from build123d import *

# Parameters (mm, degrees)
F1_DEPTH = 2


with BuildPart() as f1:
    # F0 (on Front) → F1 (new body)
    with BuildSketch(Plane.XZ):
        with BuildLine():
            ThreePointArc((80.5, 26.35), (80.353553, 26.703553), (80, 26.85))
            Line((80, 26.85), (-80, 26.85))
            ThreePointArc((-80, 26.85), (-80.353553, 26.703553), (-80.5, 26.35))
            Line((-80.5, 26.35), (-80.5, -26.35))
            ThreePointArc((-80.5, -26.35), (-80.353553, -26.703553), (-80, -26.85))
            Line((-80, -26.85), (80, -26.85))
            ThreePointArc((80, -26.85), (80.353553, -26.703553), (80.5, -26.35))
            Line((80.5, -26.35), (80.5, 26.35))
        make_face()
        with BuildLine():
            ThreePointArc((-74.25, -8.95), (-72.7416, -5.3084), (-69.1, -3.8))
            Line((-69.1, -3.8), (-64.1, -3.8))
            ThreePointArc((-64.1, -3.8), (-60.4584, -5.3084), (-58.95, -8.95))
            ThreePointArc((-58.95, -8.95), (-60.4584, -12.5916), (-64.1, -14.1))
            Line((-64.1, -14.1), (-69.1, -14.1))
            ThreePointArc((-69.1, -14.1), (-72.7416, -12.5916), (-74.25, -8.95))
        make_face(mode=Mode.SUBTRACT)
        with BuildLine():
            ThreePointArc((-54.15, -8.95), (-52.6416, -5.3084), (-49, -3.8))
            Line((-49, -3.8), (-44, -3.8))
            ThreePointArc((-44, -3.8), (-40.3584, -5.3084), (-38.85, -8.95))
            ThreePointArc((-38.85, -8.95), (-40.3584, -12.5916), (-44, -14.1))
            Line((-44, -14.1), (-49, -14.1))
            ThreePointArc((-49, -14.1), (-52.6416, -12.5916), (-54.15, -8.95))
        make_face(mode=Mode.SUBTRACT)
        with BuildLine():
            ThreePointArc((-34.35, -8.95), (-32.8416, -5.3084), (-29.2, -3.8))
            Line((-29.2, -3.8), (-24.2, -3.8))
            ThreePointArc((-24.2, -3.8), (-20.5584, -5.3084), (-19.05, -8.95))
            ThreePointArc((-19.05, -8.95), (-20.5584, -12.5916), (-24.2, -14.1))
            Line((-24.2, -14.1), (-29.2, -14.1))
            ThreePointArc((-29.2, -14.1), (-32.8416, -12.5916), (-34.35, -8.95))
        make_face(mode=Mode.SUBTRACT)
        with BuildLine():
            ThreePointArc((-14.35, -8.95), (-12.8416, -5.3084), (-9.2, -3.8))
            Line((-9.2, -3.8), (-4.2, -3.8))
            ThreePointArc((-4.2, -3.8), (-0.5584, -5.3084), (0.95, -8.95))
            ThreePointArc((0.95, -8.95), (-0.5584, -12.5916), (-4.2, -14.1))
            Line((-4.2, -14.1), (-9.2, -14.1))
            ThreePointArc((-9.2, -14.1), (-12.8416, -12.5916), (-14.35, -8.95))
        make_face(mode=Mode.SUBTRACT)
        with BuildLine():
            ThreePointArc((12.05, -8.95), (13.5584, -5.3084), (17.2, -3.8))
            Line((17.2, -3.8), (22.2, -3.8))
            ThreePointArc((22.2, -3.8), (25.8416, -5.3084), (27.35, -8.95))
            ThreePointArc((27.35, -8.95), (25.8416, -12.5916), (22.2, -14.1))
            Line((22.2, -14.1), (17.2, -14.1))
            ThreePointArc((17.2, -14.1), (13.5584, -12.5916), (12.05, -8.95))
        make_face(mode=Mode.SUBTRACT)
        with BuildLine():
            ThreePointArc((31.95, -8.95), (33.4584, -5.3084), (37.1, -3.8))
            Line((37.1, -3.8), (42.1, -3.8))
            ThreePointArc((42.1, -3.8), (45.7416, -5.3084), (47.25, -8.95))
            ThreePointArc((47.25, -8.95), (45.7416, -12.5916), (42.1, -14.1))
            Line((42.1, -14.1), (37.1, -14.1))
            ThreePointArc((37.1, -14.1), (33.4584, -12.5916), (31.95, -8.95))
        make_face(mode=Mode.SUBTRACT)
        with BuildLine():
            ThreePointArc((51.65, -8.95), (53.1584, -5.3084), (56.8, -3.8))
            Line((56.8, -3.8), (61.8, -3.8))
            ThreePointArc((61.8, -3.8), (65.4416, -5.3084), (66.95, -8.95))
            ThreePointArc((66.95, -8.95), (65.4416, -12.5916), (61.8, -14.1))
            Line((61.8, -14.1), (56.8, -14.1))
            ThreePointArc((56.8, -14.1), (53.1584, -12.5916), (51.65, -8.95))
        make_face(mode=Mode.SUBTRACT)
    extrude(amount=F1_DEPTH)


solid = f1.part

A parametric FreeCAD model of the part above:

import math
import FreeCAD as App
import Part
import Sketcher

V = App.Vector

doc = App.newDocument("Part")
body = doc.addObject("PartDesign::Body", "Body")

# Sketch on XZ plane
sketch1 = body.newObject("Sketcher::SketchObject", "Sketch")
sketch1.AttachmentSupport = (doc.getObject("XZ_Plane"), [""])
sketch1.MapMode = "FlatFace"
sketch1.addGeometry([
    Part.ArcOfCircle(Part.Circle(V(80, 26.3, 0), V(0, 0, 1), 0.5), math.radians(0), math.radians(90)),  # 0
    Part.LineSegment(V(80, 26.9, 0), V(-80, 26.9, 0)),  # 1
    Part.ArcOfCircle(Part.Circle(V(-80, 26.3, 0), V(0, 0, 1), 0.5), math.radians(90), math.radians(180)),  # 2
    Part.LineSegment(V(-80.5, 26.4, 0), V(-80.5, -26.4, 0)),  # 3
    Part.ArcOfCircle(Part.Circle(V(-80, -26.3, 0), V(0, 0, 1), 0.5), math.radians(-180), math.radians(-90)),  # 4
    Part.LineSegment(V(-80, -26.9, 0), V(80, -26.9, 0)),  # 5
    Part.ArcOfCircle(Part.Circle(V(80, -26.3, 0), V(0, 0, 1), 0.5), math.radians(-90), math.radians(0)),  # 6
    Part.LineSegment(V(80.5, -26.4, 0), V(80.5, 26.4, 0)),  # 7
    Part.ArcOfCircle(Part.Circle(V(17.2, -9, 0), V(0, 0, 1), 5.1), math.radians(180), math.radians(270)),  # 8
    Part.ArcOfCircle(Part.Circle(V(17.2, -8.9, 0), V(0, 0, 1), 5.1), math.radians(90), math.radians(180)),  # 9
    Part.LineSegment(V(17.2, -3.8, 0), V(22.2, -3.8, 0)),  # 10
    Part.ArcOfCircle(Part.Circle(V(22.2, -8.9, 0), V(0, 0, 1), 5.1), math.radians(0), math.radians(90)),  # 11
    Part.ArcOfCircle(Part.Circle(V(22.2, -9, 0), V(0, 0, 1), 5.1), math.radians(-90), math.radians(0)),  # 12
    Part.LineSegment(V(22.2, -14.1, 0), V(17.2, -14.1, 0)),  # 13
    Part.ArcOfCircle(Part.Circle(V(-69.1, -9, 0), V(0, 0, 1), 5.1), math.radians(180), math.radians(270)),  # 14
    Part.ArcOfCircle(Part.Circle(V(-69.1, -8.9, 0), V(0, 0, 1), 5.1), math.radians(90), math.radians(180)),  # 15
    Part.LineSegment(V(-69.1, -3.8, 0), V(-64.1, -3.8, 0)),  # 16
    Part.ArcOfCircle(Part.Circle(V(-64.1, -8.9, 0), V(0, 0, 1), 5.1), math.radians(0), math.radians(90)),  # 17
    Part.ArcOfCircle(Part.Circle(V(-64.1, -9, 0), V(0, 0, 1), 5.1), math.radians(-90), math.radians(0)),  # 18
    Part.LineSegment(V(-64.1, -14.1, 0), V(-69.1, -14.1, 0)),  # 19
    Part.ArcOfCircle(Part.Circle(V(-49, -9, 0), V(0, 0, 1), 5.1), math.radians(180), math.radians(270)),  # 20
    Part.ArcOfCircle(Part.Circle(V(-49, -8.9, 0), V(0, 0, 1), 5.1), math.radians(90), math.radians(180)),  # 21
    Part.LineSegment(V(-49, -3.8, 0), V(-44, -3.8, 0)),  # 22
    Part.ArcOfCircle(Part.Circle(V(-44, -8.9, 0), V(0, 0, 1), 5.1), math.radians(0), math.radians(90)),  # 23
    Part.ArcOfCircle(Part.Circle(V(-44, -9, 0), V(0, 0, 1), 5.1), math.radians(-90), math.radians(0)),  # 24
    Part.LineSegment(V(-44, -14.1, 0), V(-49, -14.1, 0)),  # 25
    Part.ArcOfCircle(Part.Circle(V(-29.2, -9, 0), V(0, 0, 1), 5.1), math.radians(180), math.radians(270)),  # 26
    Part.ArcOfCircle(Part.Circle(V(-29.2, -8.9, 0), V(0, 0, 1), 5.1), math.radians(90), math.radians(180)),  # 27
    Part.LineSegment(V(-29.2, -3.8, 0), V(-24.2, -3.8, 0)),  # 28
    Part.ArcOfCircle(Part.Circle(V(-24.2, -8.9, 0), V(0, 0, 1), 5.1), math.radians(0), math.radians(90)),  # 29
    Part.ArcOfCircle(Part.Circle(V(-24.2, -9, 0), V(0, 0, 1), 5.1), math.radians(-90), math.radians(0)),  # 30
    Part.LineSegment(V(-24.2, -14.1, 0), V(-29.2, -14.1, 0)),  # 31
    Part.ArcOfCircle(Part.Circle(V(-9.2, -9, 0), V(0, 0, 1), 5.1), math.radians(180), math.radians(270)),  # 32
    Part.ArcOfCircle(Part.Circle(V(-9.2, -8.9, 0), V(0, 0, 1), 5.1), math.radians(90), math.radians(180)),  # 33
    Part.LineSegment(V(-9.2, -3.8, 0), V(-4.2, -3.8, 0)),  # 34
    Part.ArcOfCircle(Part.Circle(V(-4.2, -8.9, 0), V(0, 0, 1), 5.1), math.radians(0), math.radians(90)),  # 35
    Part.ArcOfCircle(Part.Circle(V(-4.2, -9, 0), V(0, 0, 1), 5.1), math.radians(-90), math.radians(0)),  # 36
    Part.LineSegment(V(-4.2, -14.1, 0), V(-9.2, -14.1, 0)),  # 37
    Part.ArcOfCircle(Part.Circle(V(37.1, -9, 0), V(0, 0, 1), 5.1), math.radians(180), math.radians(270)),  # 38
    Part.ArcOfCircle(Part.Circle(V(37.1, -8.9, 0), V(0, 0, 1), 5.1), math.radians(90), math.radians(180)),  # 39
    Part.LineSegment(V(37.1, -3.8, 0), V(42.1, -3.8, 0)),  # 40
    Part.ArcOfCircle(Part.Circle(V(42.1, -8.9, 0), V(0, 0, 1), 5.1), math.radians(0), math.radians(90)),  # 41
    Part.ArcOfCircle(Part.Circle(V(42.1, -9, 0), V(0, 0, 1), 5.1), math.radians(-90), math.radians(0)),  # 42
    Part.LineSegment(V(42.1, -14.1, 0), V(37.1, -14.1, 0)),  # 43
    Part.ArcOfCircle(Part.Circle(V(56.8, -9, 0), V(0, 0, 1), 5.1), math.radians(180), math.radians(270)),  # 44
    Part.ArcOfCircle(Part.Circle(V(56.8, -8.9, 0), V(0, 0, 1), 5.1), math.radians(90), math.radians(180)),  # 45
    Part.LineSegment(V(56.8, -3.8, 0), V(61.8, -3.8, 0)),  # 46
    Part.ArcOfCircle(Part.Circle(V(61.8, -8.9, 0), V(0, 0, 1), 5.1), math.radians(0), math.radians(90)),  # 47
    Part.ArcOfCircle(Part.Circle(V(61.8, -9, 0), V(0, 0, 1), 5.1), math.radians(-90), math.radians(0)),  # 48
    Part.LineSegment(V(61.8, -14.1, 0), V(56.8, -14.1, 0)),  # 49
], False)
sketch1.addConstraint([
    Sketcher.Constraint("Coincident", 0, 2, 1, 1),
    Sketcher.Constraint("Coincident", 1, 2, 2, 1),
    Sketcher.Constraint("Coincident", 2, 2, 3, 1),
    Sketcher.Constraint("Coincident", 3, 2, 4, 1),
    Sketcher.Constraint("Coincident", 4, 2, 5, 1),
    Sketcher.Constraint("Coincident", 5, 2, 6, 1),
    Sketcher.Constraint("Coincident", 6, 2, 7, 1),
    Sketcher.Constraint("Coincident", 7, 2, 0, 1),
    Sketcher.Constraint("Tangent", 8, 1, 9, 2),
    Sketcher.Constraint("Tangent", 9, 1, 10, 1),
    Sketcher.Constraint("Tangent", 10, 2, 11, 2),
    Sketcher.Constraint("Tangent", 11, 1, 12, 2),
    Sketcher.Constraint("Tangent", 12, 1, 13, 1),
    Sketcher.Constraint("Tangent", 13, 2, 8, 2),
    Sketcher.Constraint("Tangent", 14, 1, 15, 2),
    Sketcher.Constraint("Tangent", 15, 1, 16, 1),
    Sketcher.Constraint("Tangent", 16, 2, 17, 2),
    Sketcher.Constraint("Tangent", 17, 1, 18, 2),
    Sketcher.Constraint("Tangent", 18, 1, 19, 1),
    Sketcher.Constraint("Tangent", 19, 2, 14, 2),
    Sketcher.Constraint("Tangent", 20, 1, 21, 2),
    Sketcher.Constraint("Tangent", 21, 1, 22, 1),
    Sketcher.Constraint("Tangent", 22, 2, 23, 2),
    Sketcher.Constraint("Tangent", 23, 1, 24, 2),
    Sketcher.Constraint("Tangent", 24, 1, 25, 1),
    Sketcher.Constraint("Tangent", 25, 2, 20, 2),
    Sketcher.Constraint("Tangent", 26, 1, 27, 2),
    Sketcher.Constraint("Tangent", 27, 1, 28, 1),
    Sketcher.Constraint("Tangent", 28, 2, 29, 2),
    Sketcher.Constraint("Tangent", 29, 1, 30, 2),
    Sketcher.Constraint("Tangent", 30, 1, 31, 1),
    Sketcher.Constraint("Tangent", 31, 2, 26, 2),
    Sketcher.Constraint("Tangent", 32, 1, 33, 2),
    Sketcher.Constraint("Tangent", 33, 1, 34, 1),
    Sketcher.Constraint("Tangent", 34, 2, 35, 2),
    Sketcher.Constraint("Tangent", 35, 1, 36, 2),
    Sketcher.Constraint("Tangent", 36, 1, 37, 1),
    Sketcher.Constraint("Tangent", 37, 2, 32, 2),
    Sketcher.Constraint("Tangent", 38, 1, 39, 2),
    Sketcher.Constraint("Tangent", 39, 1, 40, 1),
    Sketcher.Constraint("Tangent", 40, 2, 41, 2),
    Sketcher.Constraint("Tangent", 41, 1, 42, 2),
    Sketcher.Constraint("Tangent", 42, 1, 43, 1),
    Sketcher.Constraint("Tangent", 43, 2, 38, 2),
    Sketcher.Constraint("Tangent", 44, 1, 45, 2),
    Sketcher.Constraint("Tangent", 45, 1, 46, 1),
    Sketcher.Constraint("Tangent", 46, 2, 47, 2),
    Sketcher.Constraint("Tangent", 47, 1, 48, 2),
    Sketcher.Constraint("Tangent", 48, 1, 49, 1),
    Sketcher.Constraint("Tangent", 49, 2, 44, 2),
    Sketcher.Constraint("Horizontal", 1),
    Sketcher.Constraint("Vertical", 3),
    Sketcher.Constraint("Horizontal", 5),
    Sketcher.Constraint("Vertical", 7),
    Sketcher.Constraint("Horizontal", 10),
    Sketcher.Constraint("Horizontal", 13),
    Sketcher.Constraint("Horizontal", 16),
    Sketcher.Constraint("Horizontal", 19),
    Sketcher.Constraint("Horizontal", 22),
    Sketcher.Constraint("Horizontal", 25),
    Sketcher.Constraint("Horizontal", 28),
    Sketcher.Constraint("Horizontal", 31),
    Sketcher.Constraint("Horizontal", 34),
    Sketcher.Constraint("Horizontal", 37),
    Sketcher.Constraint("Horizontal", 40),
    Sketcher.Constraint("Horizontal", 43),
    Sketcher.Constraint("Horizontal", 46),
    Sketcher.Constraint("Horizontal", 49),
    Sketcher.Constraint("Equal", 0, 2),
    Sketcher.Constraint("Equal", 2, 4),
    Sketcher.Constraint("Equal", 4, 6),
    Sketcher.Constraint("Equal", 8, 9),
    Sketcher.Constraint("Equal", 9, 11),
    Sketcher.Constraint("Equal", 12, 14),
    Sketcher.Constraint("Equal", 14, 15),
    Sketcher.Constraint("Equal", 15, 17),
    Sketcher.Constraint("Equal", 18, 20),
    Sketcher.Constraint("Equal", 20, 21),
    Sketcher.Constraint("Equal", 21, 23),
    Sketcher.Constraint("Equal", 24, 26),
    Sketcher.Constraint("Equal", 26, 27),
    Sketcher.Constraint("Equal", 27, 29),
    Sketcher.Constraint("Equal", 30, 32),
    Sketcher.Constraint("Equal", 32, 33),
    Sketcher.Constraint("Equal", 33, 35),
    Sketcher.Constraint("Equal", 36, 38),
    Sketcher.Constraint("Equal", 38, 39),
    Sketcher.Constraint("Equal", 39, 41),
    Sketcher.Constraint("Equal", 42, 44),
    Sketcher.Constraint("Equal", 44, 45),
    Sketcher.Constraint("Equal", 45, 47),
    Sketcher.Constraint("Symmetric", 0, 3, 4, 3, -1, 1),
    Sketcher.Constraint("Horizontal", 12, 3, 14, 3),
    Sketcher.Constraint("Horizontal", 18, 3, 20, 3),
    Sketcher.Constraint("Horizontal", 24, 3, 26, 3),
    Sketcher.Constraint("Horizontal", 30, 3, 32, 3),
    Sketcher.Constraint("Horizontal", 36, 3, 38, 3),
    Sketcher.Constraint("Horizontal", 42, 3, 44, 3),
    Sketcher.Constraint("Horizontal", 0, 3, 2, 2),
    Sketcher.Constraint("Horizontal", 6, 3, 3, 2),
    Sketcher.Constraint("Horizontal", 3, 2, 6, 2),
    Sketcher.Constraint("Horizontal", 2, 2, 7, 2),
    Sketcher.Constraint("Horizontal", 48, 3, 8, 1),
    Sketcher.Constraint("Horizontal", 8, 1, 11, 1),
    Sketcher.Constraint("Horizontal", 11, 1, 14, 1),
    Sketcher.Constraint("Horizontal", 14, 1, 17, 1),
    Sketcher.Constraint("Horizontal", 17, 1, 20, 1),
    Sketcher.Constraint("Horizontal", 20, 1, 23, 1),
    Sketcher.Constraint("Horizontal", 23, 1, 26, 1),
    Sketcher.Constraint("Horizontal", 26, 1, 29, 1),
    Sketcher.Constraint("Horizontal", 29, 1, 32, 1),
    Sketcher.Constraint("Horizontal", 32, 1, 35, 1),
    Sketcher.Constraint("Horizontal", 35, 1, 38, 1),
    Sketcher.Constraint("Horizontal", 38, 1, 41, 1),
    Sketcher.Constraint("Horizontal", 41, 1, 44, 1),
    Sketcher.Constraint("Horizontal", 44, 1, 47, 1),
    Sketcher.Constraint("Vertical", 6, 3, 0, 2),
    Sketcher.Constraint("Vertical", 4, 3, 1, 2),
    Sketcher.Constraint("Vertical", 1, 2, 4, 2),
    Sketcher.Constraint("Vertical", 0, 2, 5, 2),
    Sketcher.Constraint("Equal", 13, 16),
    Sketcher.Constraint("Equal", 19, 22),
    Sketcher.Constraint("Equal", 25, 28),
    Sketcher.Constraint("Equal", 31, 34),
    Sketcher.Constraint("Equal", 37, 40),
    Sketcher.Constraint("Equal", 43, 46),
    Sketcher.Constraint("Radius", 0, 0.500001),
    Sketcher.Constraint("DistanceX", 1, 2, 1, 1, 160.0),
    Sketcher.Constraint("DistanceX", 10, 1, 10, 2, 5.0),
    Sketcher.Constraint("Radius", 8, 5.15),
    Sketcher.Constraint("DistanceY", 3, 2, 3, 1, 52.7),
    Sketcher.Constraint("DistanceX", 20, 3, -1, 1, 49.0),
    Sketcher.Constraint("DistanceX", -1, 1, 8, 3, 17.2),
    Sketcher.Constraint("DistanceX", 14, 3, -1, 1, 69.1),
    Sketcher.Constraint("DistanceX", 26, 3, -1, 1, 29.2),
    Sketcher.Constraint("DistanceX", 32, 3, -1, 1, 9.2),
    Sketcher.Constraint("DistanceX", -1, 1, 38, 3, 37.1),
    Sketcher.Constraint("DistanceX", -1, 1, 44, 3, 56.8),
    Sketcher.Constraint("DistanceY", 9, 1, -1, 1, 3.8),
])
pad1 = body.newObject("PartDesign::Pad", "Pad")
pad1.Profile = sketch1
pad1.Length = 2

doc.recompute()
